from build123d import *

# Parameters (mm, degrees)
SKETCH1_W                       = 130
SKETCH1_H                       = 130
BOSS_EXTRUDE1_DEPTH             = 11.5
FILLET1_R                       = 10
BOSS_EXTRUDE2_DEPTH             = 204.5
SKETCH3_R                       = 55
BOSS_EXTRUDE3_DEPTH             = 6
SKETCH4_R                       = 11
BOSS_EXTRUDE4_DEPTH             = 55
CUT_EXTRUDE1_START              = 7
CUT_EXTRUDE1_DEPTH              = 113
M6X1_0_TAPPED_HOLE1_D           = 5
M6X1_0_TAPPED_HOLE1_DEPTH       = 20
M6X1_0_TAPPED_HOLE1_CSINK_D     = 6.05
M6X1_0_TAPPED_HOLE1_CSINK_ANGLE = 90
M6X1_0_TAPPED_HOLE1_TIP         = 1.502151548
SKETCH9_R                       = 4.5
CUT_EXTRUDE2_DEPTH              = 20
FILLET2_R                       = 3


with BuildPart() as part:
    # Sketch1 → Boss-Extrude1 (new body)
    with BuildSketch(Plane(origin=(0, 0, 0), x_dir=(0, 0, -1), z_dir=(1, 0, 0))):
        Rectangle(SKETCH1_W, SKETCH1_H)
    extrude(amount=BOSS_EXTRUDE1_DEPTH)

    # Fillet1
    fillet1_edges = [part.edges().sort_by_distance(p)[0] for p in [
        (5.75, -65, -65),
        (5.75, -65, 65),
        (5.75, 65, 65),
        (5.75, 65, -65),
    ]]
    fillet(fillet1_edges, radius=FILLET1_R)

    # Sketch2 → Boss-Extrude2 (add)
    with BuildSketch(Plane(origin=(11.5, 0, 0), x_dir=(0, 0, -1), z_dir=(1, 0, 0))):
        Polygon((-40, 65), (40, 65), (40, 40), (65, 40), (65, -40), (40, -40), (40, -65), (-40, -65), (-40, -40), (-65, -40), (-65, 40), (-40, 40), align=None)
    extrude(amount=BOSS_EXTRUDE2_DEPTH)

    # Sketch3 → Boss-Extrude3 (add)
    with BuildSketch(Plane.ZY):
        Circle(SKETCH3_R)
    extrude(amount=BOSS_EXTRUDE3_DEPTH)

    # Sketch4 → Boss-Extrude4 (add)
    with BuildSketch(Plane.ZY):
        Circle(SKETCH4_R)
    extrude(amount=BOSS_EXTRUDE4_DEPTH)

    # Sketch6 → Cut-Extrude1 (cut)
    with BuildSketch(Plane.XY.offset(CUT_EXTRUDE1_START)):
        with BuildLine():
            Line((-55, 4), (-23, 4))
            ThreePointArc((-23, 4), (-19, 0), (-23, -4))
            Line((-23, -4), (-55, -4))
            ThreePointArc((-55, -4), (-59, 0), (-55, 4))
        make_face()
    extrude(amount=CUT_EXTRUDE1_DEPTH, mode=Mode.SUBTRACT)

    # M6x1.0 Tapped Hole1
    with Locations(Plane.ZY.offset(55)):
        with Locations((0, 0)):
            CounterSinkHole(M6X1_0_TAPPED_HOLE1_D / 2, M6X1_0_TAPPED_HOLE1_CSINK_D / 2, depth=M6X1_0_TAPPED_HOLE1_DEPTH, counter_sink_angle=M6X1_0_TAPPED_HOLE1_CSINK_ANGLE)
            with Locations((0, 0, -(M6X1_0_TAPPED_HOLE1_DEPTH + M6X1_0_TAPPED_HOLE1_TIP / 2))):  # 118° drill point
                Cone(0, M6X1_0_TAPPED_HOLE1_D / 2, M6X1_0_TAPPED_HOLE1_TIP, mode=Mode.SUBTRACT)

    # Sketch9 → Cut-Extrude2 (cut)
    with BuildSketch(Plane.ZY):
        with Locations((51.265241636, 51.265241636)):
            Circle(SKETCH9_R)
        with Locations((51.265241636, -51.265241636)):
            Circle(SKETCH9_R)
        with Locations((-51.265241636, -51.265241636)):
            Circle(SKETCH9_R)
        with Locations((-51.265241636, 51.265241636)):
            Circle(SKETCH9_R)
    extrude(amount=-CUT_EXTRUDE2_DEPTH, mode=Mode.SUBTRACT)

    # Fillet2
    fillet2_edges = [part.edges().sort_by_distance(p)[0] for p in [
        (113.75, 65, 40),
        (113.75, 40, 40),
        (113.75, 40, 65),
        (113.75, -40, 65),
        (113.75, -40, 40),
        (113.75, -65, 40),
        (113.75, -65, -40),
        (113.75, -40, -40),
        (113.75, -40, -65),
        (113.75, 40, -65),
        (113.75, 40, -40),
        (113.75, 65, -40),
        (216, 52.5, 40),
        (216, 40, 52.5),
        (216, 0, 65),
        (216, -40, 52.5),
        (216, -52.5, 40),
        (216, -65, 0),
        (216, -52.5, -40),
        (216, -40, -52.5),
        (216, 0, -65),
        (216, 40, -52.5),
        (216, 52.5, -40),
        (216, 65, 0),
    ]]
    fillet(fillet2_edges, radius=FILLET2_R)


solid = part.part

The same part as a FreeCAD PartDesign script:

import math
import FreeCAD as App
import Part
import Sketcher

V = App.Vector


def edges_at(feature, points):
    """Names of the edges that pass closest to the given points."""
    edges = feature.Shape.Edges
    near = lambda p: min(range(len(edges)), key=lambda i: edges[i].distToShape(Part.Vertex(*p))[0])
    return sorted({f"Edge{near(p) + 1}" for p in points})


def add_polygon(sketch, points):
    """Adds a closed chain of lines whose ends are joined by coincident constraints."""
    first, n = sketch.GeometryCount, len(points)
    for a, b in zip(points, points[1:] + points[:1]):
        sketch.addGeometry(Part.LineSegment(App.Vector(*a, 0), App.Vector(*b, 0)), False)
    for i in range(n):
        sketch.addConstraint(Sketcher.Constraint("Coincident", first + i, 2, first + (i + 1) % n, 1))

doc = App.newDocument("Part")
body = doc.addObject("PartDesign::Body", "Body")

# Sketch on YZ plane
sketch1 = body.newObject("Sketcher::SketchObject", "Sketch")
sketch1.AttachmentSupport = (doc.getObject("YZ_Plane"), [""])
sketch1.MapMode = "FlatFace"
add_polygon(sketch1, [(65, 65), (-65, 65), (-65, -65), (65, -65)])  # lines 0-3
sketch1.addConstraint(Sketcher.Constraint("Horizontal", 0))
sketch1.addConstraint(Sketcher.Constraint("Vertical", 1))
sketch1.addConstraint(Sketcher.Constraint("Horizontal", 2))
sketch1.addConstraint(Sketcher.Constraint("Vertical", 3))
sketch1.addConstraint(Sketcher.Constraint("Symmetric", 0, 2, 2, 2, -1, 1))
sketch1.addConstraint(Sketcher.Constraint("Equal", 2, 1))
sketch1.addConstraint(Sketcher.Constraint("DistanceX", 0, 2, 0, 1, 130.0))
pad1 = body.newObject("PartDesign::Pad", "Pad")
pad1.Profile = sketch1
pad1.Length = 11.5
doc.recompute()

fillet = body.newObject("PartDesign::Fillet", "Fillet")
fillet.Base = (pad1, edges_at(pad1, [
    (5.75, -65, -65),
    (5.75, -65, 65),
    (5.75, 65, 65),
    (5.75, 65, -65),
]))
fillet.Radius = 10

# Sketch on YZ plane
sketch2 = body.newObject("Sketcher::SketchObject", "Sketch001")
sketch2.AttachmentSupport = (doc.getObject("YZ_Plane"), [""])
sketch2.MapMode = "FlatFace"
sketch2.AttachmentOffset = App.Placement(V(0, 0, 11.5), App.Rotation())
add_polygon(sketch2, [(65, -40), (65, 40), (40, 40), (40, 65), (-40, 65), (-40, 40), (-65, 40), (-65, -40), (-40, -40), (-40, -65), (40, -65), (40, -40)])  # lines 0-11
sketch2.addConstraint(Sketcher.Constraint("Vertical", 0))
sketch2.addConstraint(Sketcher.Constraint("Horizontal", 1))
sketch2.addConstraint(Sketcher.Constraint("Vertical", 2))
sketch2.addConstraint(Sketcher.Constraint("Horizontal", 3))
sketch2.addConstraint(Sketcher.Constraint("Vertical", 4))
sketch2.addConstraint(Sketcher.Constraint("Horizontal", 5))
sketch2.addConstraint(Sketcher.Constraint("Vertical", 6))
sketch2.addConstraint(Sketcher.Constraint("Horizontal", 7))
sketch2.addConstraint(Sketcher.Constraint("Vertical", 8))
sketch2.addConstraint(Sketcher.Constraint("Horizontal", 9))
sketch2.addConstraint(Sketcher.Constraint("Vertical", 10))
sketch2.addConstraint(Sketcher.Constraint("Horizontal", 11))
sketch2.addConstraint(Sketcher.Constraint("Symmetric", 0, 2, 6, 2, -1, 1))
sketch2.addConstraint(Sketcher.Constraint("Symmetric", 2, 2, 8, 2, -1, 1))
sketch2.addConstraint(Sketcher.Constraint("Symmetric", 4, 2, 10, 2, -1, 1))
sketch2.addConstraint(Sketcher.Constraint("Symmetric", 1, 2, 4, 2, -2))
sketch2.addConstraint(Sketcher.Constraint("Equal", 9, 0))
sketch2.addConstraint(Sketcher.Constraint("Equal", 11, 2))
sketch2.addConstraint(Sketcher.Constraint("DistanceX", 1, 2, 1, 1, 25.0))
sketch2.addConstraint(Sketcher.Constraint("DistanceX", 3, 2, 3, 1, 80.0))
pad2 = body.newObject("PartDesign::Pad", "Pad001")
pad2.Profile = sketch2
pad2.Length = 204.5

# Sketch on YZ plane
sketch3 = body.newObject("Sketcher::SketchObject", "Sketch002")
sketch3.AttachmentSupport = (doc.getObject("YZ_Plane"), [""])
sketch3.MapMode = "FlatFace"
sketch3.addGeometry(Part.Circle(V(0, 0, 0), V(0, 0, 1), 55), False)
sketch3.addConstraint(Sketcher.Constraint("Coincident", 0, 3, -1, 1))
sketch3.addConstraint(Sketcher.Constraint("Diameter", 0, 110.0))
pad3 = body.newObject("PartDesign::Pad", "Pad002")
pad3.Profile = sketch3
pad3.Length = 6
pad3.Reversed = True

# Sketch on YZ plane
sketch4 = body.newObject("Sketcher::SketchObject", "Sketch003")
sketch4.AttachmentSupport = (doc.getObject("YZ_Plane"), [""])
sketch4.MapMode = "FlatFace"
sketch4.addGeometry(Part.Circle(V(0, 0, 0), V(0, 0, 1), 11), False)
sketch4.addConstraint(Sketcher.Constraint("Coincident", 0, 3, -1, 1))
sketch4.addConstraint(Sketcher.Constraint("Diameter", 0, 22.0))
pad4 = body.newObject("PartDesign::Pad", "Pad003")
pad4.Profile = sketch4
pad4.Length = 55
pad4.Reversed = True

# Sketch on XY plane
sketch5 = body.newObject("Sketcher::SketchObject", "Sketch004")
sketch5.AttachmentSupport = (doc.getObject("XY_Plane"), [""])
sketch5.MapMode = "FlatFace"
sketch5.AttachmentOffset = App.Placement(V(0, 0, 7), App.Rotation())
sketch5.addGeometry(Part.LineSegment(V(-23, 4, 0), V(-55, 4, 0)), False)
sketch5.addGeometry(Part.ArcOfCircle(Part.Circle(V(-55, 0, 0), V(0, 0, 1), 4), math.radians(90), math.radians(270)), False)
sketch5.addGeometry(Part.LineSegment(V(-55, -4, 0), V(-23, -4, 0)), False)
sketch5.addGeometry(Part.ArcOfCircle(Part.Circle(V(-23, 0, 0), V(0, 0, 1), 4), math.radians(-90), math.radians(90)), False)
sketch5.addConstraint(Sketcher.Constraint("Tangent", 0, 2, 1, 1))
sketch5.addConstraint(Sketcher.Constraint("Tangent", 1, 2, 2, 1))
sketch5.addConstraint(Sketcher.Constraint("Tangent", 2, 2, 3, 1))
sketch5.addConstraint(Sketcher.Constraint("Tangent", 3, 2, 0, 1))
sketch5.addConstraint(Sketcher.Constraint("Horizontal", 0))
sketch5.addConstraint(Sketcher.Constraint("Horizontal", 2))
sketch5.addConstraint(Sketcher.Constraint("PointOnObject", 1, 3, -1))
sketch5.addConstraint(Sketcher.Constraint("Radius", 1, 4.0))
sketch5.addConstraint(Sketcher.Constraint("DistanceX", 0, 2, 0, 1, 32.0))
sketch5.addConstraint(Sketcher.Constraint("DistanceX", 1, 3, -1, 1, 55.0))
pocket1 = body.newObject("PartDesign::Pocket", "Pocket")
pocket1.Profile = sketch5
pocket1.Length = 113
pocket1.Reversed = True

# Sketch on YZ plane
sketch6 = body.newObject("Sketcher::SketchObject", "Sketch005")
sketch6.AttachmentSupport = (doc.getObject("YZ_Plane"), [""])
sketch6.MapMode = "FlatFace"
sketch6.AttachmentOffset = App.Placement(V(0, 0, -55), App.Rotation())
sketch6.addGeometry(Part.Circle(V(0, 0, 0), V(0, 0, 1), 2.5), False)
sketch6.addConstraint(Sketcher.Constraint("Coincident", 0, 3, -1, 1))
sketch6.addConstraint(Sketcher.Constraint("Diameter", 0, 5.0))
doc.recompute()
hole = body.newObject("PartDesign::Hole", "Hole")
hole.Profile = sketch6
hole.ThreadType = "None"
hole.Diameter = 5
hole.DepthType = "Dimension"
hole.Depth = 20
hole.DrillPoint = "Angled"
hole.DrillPointAngle = 118
hole.HoleCutType = "Countersink"
hole.HoleCutDiameter = 6.05
hole.HoleCutCountersinkAngle = 90
hole.Reversed = True

# Sketch on YZ plane
sketch7 = body.newObject("Sketcher::SketchObject", "Sketch006")
sketch7.AttachmentSupport = (doc.getObject("YZ_Plane"), [""])
sketch7.MapMode = "FlatFace"
sketch7.addGeometry(Part.Circle(V(51.3, 51.3, 0), V(0, 0, 1), 4.5), False)
sketch7.addGeometry(Part.Circle(V(-51.3, 51.3, 0), V(0, 0, 1), 4.5), False)
sketch7.addGeometry(Part.Circle(V(-51.3, -51.3, 0), V(0, 0, 1), 4.5), False)
sketch7.addGeometry(Part.Circle(V(51.3, -51.3, 0), V(0, 0, 1), 4.5), False)
sketch7.addConstraint(Sketcher.Constraint("Equal", 0, 1))
sketch7.addConstraint(Sketcher.Constraint("Equal", 1, 2))
sketch7.addConstraint(Sketcher.Constraint("Equal", 2, 3))
sketch7.addConstraint(Sketcher.Constraint("Symmetric", 0, 3, 2, 3, -1, 1))
sketch7.addConstraint(Sketcher.Constraint("Symmetric", 1, 3, 3, 3, -1, 1))
sketch7.addConstraint(Sketcher.Constraint("Symmetric", 0, 3, 1, 3, -2))
sketch7.addConstraint(Sketcher.Constraint("Diameter", 0, 9.0))
sketch7.addConstraint(Sketcher.Constraint("DistanceX", -1, 1, 0, 3, 51.265242))
sketch7.addConstraint(Sketcher.Constraint("DistanceY", -1, 1, 0, 3, 51.265242))
pocket2 = body.newObject("PartDesign::Pocket", "Pocket001")
pocket2.Profile = sketch7
pocket2.Length = 20
pocket2.Reversed = True
doc.recompute()

fillet2 = body.newObject("PartDesign::Fillet", "Fillet001")
fillet2.Base = (pocket2, edges_at(pocket2, [
    (113.75, 65, 40),
    (113.75, 40, 40),
    (113.75, 40, 65),
    (113.75, -40, 65),
    (113.75, -40, 40),
    (113.75, -65, 40),
    (113.75, -65, -40),
    (113.75, -40, -40),
    (113.75, -40, -65),
    (113.75, 40, -65),
    (113.75, 40, -40),
    (113.75, 65, -40),
    (216, 52.5, 40),
    (216, 40, 52.5),
    (216, 0, 65),
    (216, -40, 52.5),
    (216, -52.5, 40),
    (216, -65, 0),
    (216, -52.5, -40),
    (216, -40, -52.5),
    (216, 0, -65),
    (216, 40, -52.5),
    (216, 52.5, -40),
    (216, 65, 0),
]))
fillet2.Radius = 3

doc.recompute()
